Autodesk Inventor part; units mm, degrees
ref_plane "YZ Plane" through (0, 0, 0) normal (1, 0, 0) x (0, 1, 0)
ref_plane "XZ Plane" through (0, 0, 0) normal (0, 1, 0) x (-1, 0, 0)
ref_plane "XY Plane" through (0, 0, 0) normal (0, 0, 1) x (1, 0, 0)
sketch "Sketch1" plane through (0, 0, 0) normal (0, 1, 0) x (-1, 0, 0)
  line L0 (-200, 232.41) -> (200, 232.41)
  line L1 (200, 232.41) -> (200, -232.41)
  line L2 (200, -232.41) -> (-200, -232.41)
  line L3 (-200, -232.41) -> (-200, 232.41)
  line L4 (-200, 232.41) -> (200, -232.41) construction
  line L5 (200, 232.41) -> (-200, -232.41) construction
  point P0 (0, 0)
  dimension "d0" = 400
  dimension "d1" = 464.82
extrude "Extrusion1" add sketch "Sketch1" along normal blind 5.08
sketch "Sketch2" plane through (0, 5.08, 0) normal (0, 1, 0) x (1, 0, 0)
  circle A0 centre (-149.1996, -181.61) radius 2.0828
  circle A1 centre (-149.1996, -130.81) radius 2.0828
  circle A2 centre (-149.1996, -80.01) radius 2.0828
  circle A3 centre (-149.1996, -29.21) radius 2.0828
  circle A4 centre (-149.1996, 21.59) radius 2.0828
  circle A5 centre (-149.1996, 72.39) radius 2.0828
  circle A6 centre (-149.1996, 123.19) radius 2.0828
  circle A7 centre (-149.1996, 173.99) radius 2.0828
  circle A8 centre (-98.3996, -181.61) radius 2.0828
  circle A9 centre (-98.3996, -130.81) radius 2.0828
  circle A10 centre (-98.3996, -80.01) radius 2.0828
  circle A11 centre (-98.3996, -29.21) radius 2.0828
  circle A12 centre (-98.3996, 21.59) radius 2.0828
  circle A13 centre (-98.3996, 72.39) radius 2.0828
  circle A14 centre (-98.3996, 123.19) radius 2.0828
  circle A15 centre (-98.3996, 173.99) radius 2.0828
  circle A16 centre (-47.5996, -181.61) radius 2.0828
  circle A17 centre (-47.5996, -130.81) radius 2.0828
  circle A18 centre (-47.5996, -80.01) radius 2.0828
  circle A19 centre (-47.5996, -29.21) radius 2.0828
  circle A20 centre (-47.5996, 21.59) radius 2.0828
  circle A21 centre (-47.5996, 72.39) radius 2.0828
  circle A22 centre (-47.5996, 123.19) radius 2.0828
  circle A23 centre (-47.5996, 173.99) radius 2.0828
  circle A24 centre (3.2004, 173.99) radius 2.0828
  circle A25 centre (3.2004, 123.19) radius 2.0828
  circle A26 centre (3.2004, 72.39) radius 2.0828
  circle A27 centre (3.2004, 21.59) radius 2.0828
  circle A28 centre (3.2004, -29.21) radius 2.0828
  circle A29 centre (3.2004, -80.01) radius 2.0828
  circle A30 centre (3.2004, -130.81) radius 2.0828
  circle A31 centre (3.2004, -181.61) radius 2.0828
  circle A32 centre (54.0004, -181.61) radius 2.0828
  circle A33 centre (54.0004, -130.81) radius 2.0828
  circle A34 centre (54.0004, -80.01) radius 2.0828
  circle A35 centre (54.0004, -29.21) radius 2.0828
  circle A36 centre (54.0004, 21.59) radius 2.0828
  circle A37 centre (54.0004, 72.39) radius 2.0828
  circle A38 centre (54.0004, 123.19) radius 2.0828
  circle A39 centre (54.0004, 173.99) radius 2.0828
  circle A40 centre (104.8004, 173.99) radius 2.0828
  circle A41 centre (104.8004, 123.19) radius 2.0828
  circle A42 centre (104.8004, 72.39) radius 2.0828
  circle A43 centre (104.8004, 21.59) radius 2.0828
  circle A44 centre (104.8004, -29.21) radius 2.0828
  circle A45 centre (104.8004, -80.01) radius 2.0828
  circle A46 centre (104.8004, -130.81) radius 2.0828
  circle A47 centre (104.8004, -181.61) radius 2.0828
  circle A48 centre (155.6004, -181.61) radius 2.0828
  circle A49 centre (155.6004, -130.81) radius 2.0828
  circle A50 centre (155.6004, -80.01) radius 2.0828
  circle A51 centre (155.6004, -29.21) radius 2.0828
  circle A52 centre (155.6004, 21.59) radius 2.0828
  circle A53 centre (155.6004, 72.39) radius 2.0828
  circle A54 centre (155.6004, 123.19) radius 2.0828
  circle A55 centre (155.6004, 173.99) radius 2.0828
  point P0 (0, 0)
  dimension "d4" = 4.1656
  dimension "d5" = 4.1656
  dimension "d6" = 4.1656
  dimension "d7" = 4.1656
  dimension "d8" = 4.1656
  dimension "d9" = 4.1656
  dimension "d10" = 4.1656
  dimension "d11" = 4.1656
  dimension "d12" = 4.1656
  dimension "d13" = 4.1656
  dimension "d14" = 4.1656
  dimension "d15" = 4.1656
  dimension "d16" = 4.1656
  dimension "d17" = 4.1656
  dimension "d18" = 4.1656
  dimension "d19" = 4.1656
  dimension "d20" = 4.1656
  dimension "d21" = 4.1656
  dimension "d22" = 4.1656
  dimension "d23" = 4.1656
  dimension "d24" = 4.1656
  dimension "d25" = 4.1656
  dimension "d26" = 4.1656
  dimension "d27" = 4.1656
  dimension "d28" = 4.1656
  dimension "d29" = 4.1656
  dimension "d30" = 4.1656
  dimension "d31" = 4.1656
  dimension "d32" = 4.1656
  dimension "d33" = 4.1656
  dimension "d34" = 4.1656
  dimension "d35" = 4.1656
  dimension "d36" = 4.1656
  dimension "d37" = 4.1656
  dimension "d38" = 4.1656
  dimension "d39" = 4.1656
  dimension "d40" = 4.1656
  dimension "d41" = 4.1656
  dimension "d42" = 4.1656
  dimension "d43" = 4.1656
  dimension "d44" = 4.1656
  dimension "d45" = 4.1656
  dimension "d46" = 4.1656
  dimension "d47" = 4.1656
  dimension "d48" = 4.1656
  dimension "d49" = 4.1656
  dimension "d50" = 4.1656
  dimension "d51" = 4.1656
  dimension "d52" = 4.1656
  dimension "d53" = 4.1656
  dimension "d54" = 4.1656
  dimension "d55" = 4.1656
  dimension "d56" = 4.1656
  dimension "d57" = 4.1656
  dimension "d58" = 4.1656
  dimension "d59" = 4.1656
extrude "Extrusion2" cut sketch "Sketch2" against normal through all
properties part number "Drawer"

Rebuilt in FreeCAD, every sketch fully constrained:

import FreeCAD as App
import Part
import Sketcher
from FreeCAD import Vector
Q = App.Units.Quantity


def add_polygon(sketch, points):
    """Adds a closed chain of lines whose ends are joined by coincident constraints."""
    first, n = sketch.GeometryCount, len(points)
    for a, b in zip(points, points[1:] + points[:1]):
        sketch.addGeometry(Part.LineSegment(App.Vector(*a, 0), App.Vector(*b, 0)), False)
    for i in range(n):
        sketch.addConstraint(Sketcher.Constraint("Coincident", first + i, 2, first + (i + 1) % n, 1))

doc = App.newDocument("Part")
params = doc.addObject("Spreadsheet::Sheet", "Params")
for row, (alias, value) in enumerate([
    ("sketch1_height", "18.3 in"),
    ("pad1_length", "0.2 in"),
    ("sketch2_diameter", "0.164 in"),
], start=1):
    params.set(f"A{row}", alias)
    params.set(f"B{row}", "=" + value)
    params.setAlias(f"B{row}", alias)

body = doc.addObject("PartDesign::Body", "Body")

# Sketch on XZ plane
sketch1 = body.newObject("Sketcher::SketchObject", "Sketch")
sketch1.AttachmentSupport = (doc.getObject("XZ_Plane"), [""])
sketch1.MapMode = "FlatFace"
add_polygon(sketch1, [(-200, 232.41), (200, 232.41), (200, -232.41), (-200, -232.41)])  # lines 0-3
sketch1.addConstraint([
    Sketcher.Constraint("Horizontal", 0),
    Sketcher.Constraint("Vertical", 1),
    Sketcher.Constraint("Horizontal", 2),
    Sketcher.Constraint("Vertical", 3),
    Sketcher.Constraint("Symmetric", 0, 2, 2, 2, -1, 1),
    Sketcher.Constraint("DistanceY", 1, 2, 1, 1, Q("18.3 in")),
    Sketcher.Constraint("DistanceX", 0, 1, 0, 2, 400.0),
])
sketch1.setExpression("Constraints[9]", "Params.sketch1_height")
pad1 = body.newObject("PartDesign::Pad", "Pad")
pad1.Profile = sketch1
pad1.setExpression("Length", "Params.pad1_length")
pad1.Reversed = True

# Sketch on XZ plane
sketch2 = body.newObject("Sketcher::SketchObject", "Sketch001")
sketch2.AttachmentSupport = (doc.getObject("XZ_Plane"), [""])
sketch2.MapMode = "FlatFace"
sketch2.AttachmentOffset = App.Placement(Vector(0, 0, -0.2 * 25.4), App.Rotation())
sketch2.addGeometry([
    Part.Circle(Vector(-149.1996, 181.61, 0), Vector(0, 0, 1), 2.0828),  # 0
    Part.Circle(Vector(-149.1996, 130.81, 0), Vector(0, 0, 1), 2.0828),  # 1
    Part.Circle(Vector(-149.1996, 80.01, 0), Vector(0, 0, 1), 2.0828),  # 2
    Part.Circle(Vector(-149.1996, 29.21, 0), Vector(0, 0, 1), 2.0828),  # 3
    Part.Circle(Vector(-149.1996, -21.59, 0), Vector(0, 0, 1), 2.0828),  # 4
    Part.Circle(Vector(-149.1996, -72.39, 0), Vector(0, 0, 1), 2.0828),  # 5
    Part.Circle(Vector(-149.1996, -123.19, 0), Vector(0, 0, 1), 2.0828),  # 6
    Part.Circle(Vector(-149.1996, -173.99, 0), Vector(0, 0, 1), 2.0828),  # 7
    Part.Circle(Vector(-98.3996, 181.61, 0), Vector(0, 0, 1), 2.0828),  # 8
    Part.Circle(Vector(-98.3996, 130.81, 0), Vector(0, 0, 1), 2.0828),  # 9
    Part.Circle(Vector(-98.3996, 80.01, 0), Vector(0, 0, 1), 2.0828),  # 10
    Part.Circle(Vector(-98.3996, 29.21, 0), Vector(0, 0, 1), 2.0828),  # 11
    Part.Circle(Vector(-98.3996, -21.59, 0), Vector(0, 0, 1), 2.0828),  # 12
    Part.Circle(Vector(-98.3996, -72.39, 0), Vector(0, 0, 1), 2.0828),  # 13
    Part.Circle(Vector(-98.3996, -123.19, 0), Vector(0, 0, 1), 2.0828),  # 14
    Part.Circle(Vector(-98.3996, -173.99, 0), Vector(0, 0, 1), 2.0828),  # 15
    Part.Circle(Vector(-47.5996, 181.61, 0), Vector(0, 0, 1), 2.0828),  # 16
    Part.Circle(Vector(-47.5996, 130.81, 0), Vector(0, 0, 1), 2.0828),  # 17
    Part.Circle(Vector(-47.5996, 80.01, 0), Vector(0, 0, 1), 2.0828),  # 18
    Part.Circle(Vector(-47.5996, 29.21, 0), Vector(0, 0, 1), 2.0828),  # 19
    Part.Circle(Vector(-47.5996, -21.59, 0), Vector(0, 0, 1), 2.0828),  # 20
    Part.Circle(Vector(-47.5996, -72.39, 0), Vector(0, 0, 1), 2.0828),  # 21
    Part.Circle(Vector(-47.5996, -123.19, 0), Vector(0, 0, 1), 2.0828),  # 22
    Part.Circle(Vector(-47.5996, -173.99, 0), Vector(0, 0, 1), 2.0828),  # 23
    Part.Circle(Vector(3.2004, -173.99, 0), Vector(0, 0, 1), 2.0828),  # 24
    Part.Circle(Vector(3.2004, -123.19, 0), Vector(0, 0, 1), 2.0828),  # 25
    Part.Circle(Vector(3.2004, -72.39, 0), Vector(0, 0, 1), 2.0828),  # 26
    Part.Circle(Vector(3.2004, -21.59, 0), Vector(0, 0, 1), 2.0828),  # 27
    Part.Circle(Vector(3.2004, 29.21, 0), Vector(0, 0, 1), 2.0828),  # 28
    Part.Circle(Vector(3.2004, 80.01, 0), Vector(0, 0, 1), 2.0828),  # 29
    Part.Circle(Vector(3.2004, 130.81, 0), Vector(0, 0, 1), 2.0828),  # 30
    Part.Circle(Vector(3.2004, 181.61, 0), Vector(0, 0, 1), 2.0828),  # 31
    Part.Circle(Vector(54.0004, 181.61, 0), Vector(0, 0, 1), 2.0828),  # 32
    Part.Circle(Vector(54.0004, 130.81, 0), Vector(0, 0, 1), 2.0828),  # 33
    Part.Circle(Vector(54.0004, 80.01, 0), Vector(0, 0, 1), 2.0828),  # 34
    Part.Circle(Vector(54.0004, 29.21, 0), Vector(0, 0, 1), 2.0828),  # 35
    Part.Circle(Vector(54.0004, -21.59, 0), Vector(0, 0, 1), 2.0828),  # 36
    Part.Circle(Vector(54.0004, -72.39, 0), Vector(0, 0, 1), 2.0828),  # 37
    Part.Circle(Vector(54.0004, -123.19, 0), Vector(0, 0, 1), 2.0828),  # 38
    Part.Circle(Vector(54.0004, -173.99, 0), Vector(0, 0, 1), 2.0828),  # 39
    Part.Circle(Vector(104.8004, -173.99, 0), Vector(0, 0, 1), 2.0828),  # 40
    Part.Circle(Vector(104.8004, -123.19, 0), Vector(0, 0, 1), 2.0828),  # 41
    Part.Circle(Vector(104.8004, -72.39, 0), Vector(0, 0, 1), 2.0828),  # 42
    Part.Circle(Vector(104.8004, -21.59, 0), Vector(0, 0, 1), 2.0828),  # 43
    Part.Circle(Vector(104.8004, 29.21, 0), Vector(0, 0, 1), 2.0828),  # 44
    Part.Circle(Vector(104.8004, 80.01, 0), Vector(0, 0, 1), 2.0828),  # 45
    Part.Circle(Vector(104.8004, 130.81, 0), Vector(0, 0, 1), 2.0828),  # 46
    Part.Circle(Vector(104.8004, 181.61, 0), Vector(0, 0, 1), 2.0828),  # 47
    Part.Circle(Vector(155.6004, 181.61, 0), Vector(0, 0, 1), 2.0828),  # 48
    Part.Circle(Vector(155.6004, 130.81, 0), Vector(0, 0, 1), 2.0828),  # 49
    Part.Circle(Vector(155.6004, 80.01, 0), Vector(0, 0, 1), 2.0828),  # 50
    Part.Circle(Vector(155.6004, 29.21, 0), Vector(0, 0, 1), 2.0828),  # 51
    Part.Circle(Vector(155.6004, -21.59, 0), Vector(0, 0, 1), 2.0828),  # 52
    Part.Circle(Vector(155.6004, -72.39, 0), Vector(0, 0, 1), 2.0828),  # 53
    Part.Circle(Vector(155.6004, -123.19, 0), Vector(0, 0, 1), 2.0828),  # 54
    Part.Circle(Vector(155.6004, -173.99, 0), Vector(0, 0, 1), 2.0828),  # 55
], False)
sketch2.addConstraint([
    Sketcher.Constraint("Equal", 0, 1),
    Sketcher.Constraint("Equal", 1, 2),
    Sketcher.Constraint("Equal", 2, 3),
    Sketcher.Constraint("Equal", 3, 4),
    Sketcher.Constraint("Equal", 4, 5),
    Sketcher.Constraint("Equal", 5, 6),
    Sketcher.Constraint("Equal", 6, 7),
    Sketcher.Constraint("Equal", 7, 8),
    Sketcher.Constraint("Equal", 8, 9),
    Sketcher.Constraint("Equal", 9, 10),
    Sketcher.Constraint("Equal", 10, 11),
    Sketcher.Constraint("Equal", 11, 12),
    Sketcher.Constraint("Equal", 12, 13),
    Sketcher.Constraint("Equal", 13, 14),
    Sketcher.Constraint("Equal", 14, 15),
    Sketcher.Constraint("Equal", 15, 16),
    Sketcher.Constraint("Equal", 16, 17),
    Sketcher.Constraint("Equal", 17, 18),
    Sketcher.Constraint("Equal", 18, 19),
    Sketcher.Constraint("Equal", 19, 20),
    Sketcher.Constraint("Equal", 20, 21),
    Sketcher.Constraint("Equal", 21, 22),
    Sketcher.Constraint("Equal", 22, 23),
    Sketcher.Constraint("Equal", 23, 24),
    Sketcher.Constraint("Equal", 24, 25),
    Sketcher.Constraint("Equal", 25, 26),
    Sketcher.Constraint("Equal", 26, 27),
    Sketcher.Constraint("Equal", 27, 28),
    Sketcher.Constraint("Equal", 28, 29),
    Sketcher.Constraint("Equal", 29, 30),
    Sketcher.Constraint("Equal", 30, 31),
    Sketcher.Constraint("Equal", 31, 32),
    Sketcher.Constraint("Equal", 32, 33),
    Sketcher.Constraint("Equal", 33, 34),
    Sketcher.Constraint("Equal", 34, 35),
    Sketcher.Constraint("Equal", 35, 36),
    Sketcher.Constraint("Equal", 36, 37),
    Sketcher.Constraint("Equal", 37, 38),
    Sketcher.Constraint("Equal", 38, 39),
    Sketcher.Constraint("Equal", 39, 40),
    Sketcher.Constraint("Equal", 40, 41),
    Sketcher.Constraint("Equal", 41, 42),
    Sketcher.Constraint("Equal", 42, 43),
    Sketcher.Constraint("Equal", 43, 44),
    Sketcher.Constraint("Equal", 44, 45),
    Sketcher.Constraint("Equal", 45, 46),
    Sketcher.Constraint("Equal", 46, 47),
    Sketcher.Constraint("Equal", 47, 48),
    Sketcher.Constraint("Equal", 48, 49),
    Sketcher.Constraint("Equal", 49, 50),
    Sketcher.Constraint("Equal", 50, 51),
    Sketcher.Constraint("Equal", 51, 52),
    Sketcher.Constraint("Equal", 52, 53),
    Sketcher.Constraint("Equal", 53, 54),
    Sketcher.Constraint("Equal", 54, 55),
    Sketcher.Constraint("Horizontal", 0, 3, 8, 3),
    Sketcher.Constraint("Horizontal", 1, 3, 9, 3),
    Sketcher.Constraint("Horizontal", 2, 3, 10, 3),
    Sketcher.Constraint("Horizontal", 3, 3, 11, 3),
    Sketcher.Constraint("Horizontal", 4, 3, 12, 3),
    Sketcher.Constraint("Horizontal", 5, 3, 13, 3),
    Sketcher.Constraint("Horizontal", 6, 3, 14, 3),
    Sketcher.Constraint("Horizontal", 7, 3, 15, 3),
    Sketcher.Constraint("Horizontal", 8, 3, 16, 3),
    Sketcher.Constraint("Horizontal", 9, 3, 17, 3),
    Sketcher.Constraint("Horizontal", 10, 3, 18, 3),
    Sketcher.Constraint("Horizontal", 11, 3, 19, 3),
    Sketcher.Constraint("Horizontal", 12, 3, 20, 3),
    Sketcher.Constraint("Horizontal", 13, 3, 21, 3),
    Sketcher.Constraint("Horizontal", 14, 3, 22, 3),
    Sketcher.Constraint("Horizontal", 15, 3, 23, 3),
    Sketcher.Constraint("Horizontal", 23, 3, 24, 3),
    Sketcher.Constraint("Horizontal", 22, 3, 25, 3),
    Sketcher.Constraint("Horizontal", 21, 3, 26, 3),
    Sketcher.Constraint("Horizontal", 20, 3, 27, 3),
    Sketcher.Constraint("Horizontal", 19, 3, 28, 3),
    Sketcher.Constraint("Horizontal", 18, 3, 29, 3),
    Sketcher.Constraint("Horizontal", 17, 3, 30, 3),
    Sketcher.Constraint("Horizontal", 16, 3, 31, 3),
    Sketcher.Constraint("Horizontal", 31, 3, 32, 3),
    Sketcher.Constraint("Horizontal", 30, 3, 33, 3),
    Sketcher.Constraint("Horizontal", 29, 3, 34, 3),
    Sketcher.Constraint("Horizontal", 28, 3, 35, 3),
    Sketcher.Constraint("Horizontal", 27, 3, 36, 3),
    Sketcher.Constraint("Horizontal", 26, 3, 37, 3),
    Sketcher.Constraint("Horizontal", 25, 3, 38, 3),
    Sketcher.Constraint("Horizontal", 24, 3, 39, 3),
    Sketcher.Constraint("Horizontal", 39, 3, 40, 3),
    Sketcher.Constraint("Horizontal", 38, 3, 41, 3),
    Sketcher.Constraint("Horizontal", 37, 3, 42, 3),
    Sketcher.Constraint("Horizontal", 36, 3, 43, 3),
    Sketcher.Constraint("Horizontal", 35, 3, 44, 3),
    Sketcher.Constraint("Horizontal", 34, 3, 45, 3),
    Sketcher.Constraint("Horizontal", 33, 3, 46, 3),
    Sketcher.Constraint("Horizontal", 32, 3, 47, 3),
    Sketcher.Constraint("Horizontal", 47, 3, 48, 3),
    Sketcher.Constraint("Horizontal", 46, 3, 49, 3),
    Sketcher.Constraint("Horizontal", 45, 3, 50, 3),
    Sketcher.Constraint("Horizontal", 44, 3, 51, 3),
    Sketcher.Constraint("Horizontal", 43, 3, 52, 3),
    Sketcher.Constraint("Horizontal", 42, 3, 53, 3),
    Sketcher.Constraint("Horizontal", 41, 3, 54, 3),
    Sketcher.Constraint("Horizontal", 40, 3, 55, 3),
    Sketcher.Constraint("Vertical", 0, 3, 1, 3),
    Sketcher.Constraint("Vertical", 1, 3, 2, 3),
    Sketcher.Constraint("Vertical", 2, 3, 3, 3),
    Sketcher.Constraint("Vertical", 3, 3, 4, 3),
    Sketcher.Constraint("Vertical", 4, 3, 5, 3),
    Sketcher.Constraint("Vertical", 5, 3, 6, 3),
    Sketcher.Constraint("Vertical", 6, 3, 7, 3),
    Sketcher.Constraint("Vertical", 8, 3, 9, 3),
    Sketcher.Constraint("Vertical", 9, 3, 10, 3),
    Sketcher.Constraint("Vertical", 10, 3, 11, 3),
    Sketcher.Constraint("Vertical", 11, 3, 12, 3),
    Sketcher.Constraint("Vertical", 12, 3, 13, 3),
    Sketcher.Constraint("Vertical", 13, 3, 14, 3),
    Sketcher.Constraint("Vertical", 14, 3, 15, 3),
    Sketcher.Constraint("Vertical", 16, 3, 17, 3),
    Sketcher.Constraint("Vertical", 17, 3, 18, 3),
    Sketcher.Constraint("Vertical", 18, 3, 19, 3),
    Sketcher.Constraint("Vertical", 19, 3, 20, 3),
    Sketcher.Constraint("Vertical", 20, 3, 21, 3),
    Sketcher.Constraint("Vertical", 21, 3, 22, 3),
    Sketcher.Constraint("Vertical", 22, 3, 23, 3),
    Sketcher.Constraint("Vertical", 24, 3, 25, 3),
    Sketcher.Constraint("Vertical", 25, 3, 26, 3),
    Sketcher.Constraint("Vertical", 26, 3, 27, 3),
    Sketcher.Constraint("Vertical", 27, 3, 28, 3),
    Sketcher.Constraint("Vertical", 28, 3, 29, 3),
    Sketcher.Constraint("Vertical", 29, 3, 30, 3),
    Sketcher.Constraint("Vertical", 30, 3, 31, 3),
    Sketcher.Constraint("Vertical", 32, 3, 33, 3),
    Sketcher.Constraint("Vertical", 33, 3, 34, 3),
    Sketcher.Constraint("Vertical", 34, 3, 35, 3),
    Sketcher.Constraint("Vertical", 35, 3, 36, 3),
    Sketcher.Constraint("Vertical", 36, 3, 37, 3),
    Sketcher.Constraint("Vertical", 37, 3, 38, 3),
    Sketcher.Constraint("Vertical", 38, 3, 39, 3),
    Sketcher.Constraint("Vertical", 40, 3, 41, 3),
    Sketcher.Constraint("Vertical", 41, 3, 42, 3),
    Sketcher.Constraint("Vertical", 42, 3, 43, 3),
    Sketcher.Constraint("Vertical", 43, 3, 44, 3),
    Sketcher.Constraint("Vertical", 44, 3, 45, 3),
    Sketcher.Constraint("Vertical", 45, 3, 46, 3),
    Sketcher.Constraint("Vertical", 46, 3, 47, 3),
    Sketcher.Constraint("Vertical", 48, 3, 49, 3),
    Sketcher.Constraint("Vertical", 49, 3, 50, 3),
    Sketcher.Constraint("Vertical", 50, 3, 51, 3),
    Sketcher.Constraint("Vertical", 51, 3, 52, 3),
    Sketcher.Constraint("Vertical", 52, 3, 53, 3),
    Sketcher.Constraint("Vertical", 53, 3, 54, 3),
    Sketcher.Constraint("Vertical", 54, 3, 55, 3),
    Sketcher.Constraint("Diameter", 0, Q("0.164 in")),
    Sketcher.Constraint("DistanceY", 1, 3, 0, 3, Q("2 in")),
    Sketcher.Constraint("DistanceY", 2, 3, 1, 3, Q("2 in")),
    Sketcher.Constraint("DistanceY", 3, 3, 2, 3, Q("2 in")),
    Sketcher.Constraint("DistanceY", 4, 3, 3, 3, Q("2 in")),
    Sketcher.Constraint("DistanceY", 5, 3, 4, 3, Q("2 in")),
    Sketcher.Constraint("DistanceY", 6, 3, 5, 3, Q("2 in")),
    Sketcher.Constraint("DistanceY", 7, 3, 6, 3, Q("2 in")),
    Sketcher.Constraint("DistanceX", 0, 3, 8, 3, Q("2 in")),
    Sketcher.Constraint("DistanceX", 8, 3, 16, 3, Q("2 in")),
    Sketcher.Constraint("DistanceX", 23, 3, 24, 3, Q("2 in")),
    Sketcher.Constraint("DistanceX", 31, 3, 32, 3, Q("2 in")),
    Sketcher.Constraint("DistanceX", 39, 3, 40, 3, Q("2 in")),
    Sketcher.Constraint("DistanceX", 47, 3, 48, 3, Q("2 in")),
    Sketcher.Constraint("DistanceY", -1, 1, 0, 3, Q("7.15 in")),
    Sketcher.Constraint("DistanceX", 0, 3, -1, 1, Q("5.874 in")),
])
sketch2.setExpression("Constraints[152]", "Params.sketch2_diameter")
pocket1 = body.newObject("PartDesign::Pocket", "Pocket")
pocket1.Profile = sketch2
pocket1.Type = "ThroughAll"
pocket1.Reversed = True

doc.recompute()
